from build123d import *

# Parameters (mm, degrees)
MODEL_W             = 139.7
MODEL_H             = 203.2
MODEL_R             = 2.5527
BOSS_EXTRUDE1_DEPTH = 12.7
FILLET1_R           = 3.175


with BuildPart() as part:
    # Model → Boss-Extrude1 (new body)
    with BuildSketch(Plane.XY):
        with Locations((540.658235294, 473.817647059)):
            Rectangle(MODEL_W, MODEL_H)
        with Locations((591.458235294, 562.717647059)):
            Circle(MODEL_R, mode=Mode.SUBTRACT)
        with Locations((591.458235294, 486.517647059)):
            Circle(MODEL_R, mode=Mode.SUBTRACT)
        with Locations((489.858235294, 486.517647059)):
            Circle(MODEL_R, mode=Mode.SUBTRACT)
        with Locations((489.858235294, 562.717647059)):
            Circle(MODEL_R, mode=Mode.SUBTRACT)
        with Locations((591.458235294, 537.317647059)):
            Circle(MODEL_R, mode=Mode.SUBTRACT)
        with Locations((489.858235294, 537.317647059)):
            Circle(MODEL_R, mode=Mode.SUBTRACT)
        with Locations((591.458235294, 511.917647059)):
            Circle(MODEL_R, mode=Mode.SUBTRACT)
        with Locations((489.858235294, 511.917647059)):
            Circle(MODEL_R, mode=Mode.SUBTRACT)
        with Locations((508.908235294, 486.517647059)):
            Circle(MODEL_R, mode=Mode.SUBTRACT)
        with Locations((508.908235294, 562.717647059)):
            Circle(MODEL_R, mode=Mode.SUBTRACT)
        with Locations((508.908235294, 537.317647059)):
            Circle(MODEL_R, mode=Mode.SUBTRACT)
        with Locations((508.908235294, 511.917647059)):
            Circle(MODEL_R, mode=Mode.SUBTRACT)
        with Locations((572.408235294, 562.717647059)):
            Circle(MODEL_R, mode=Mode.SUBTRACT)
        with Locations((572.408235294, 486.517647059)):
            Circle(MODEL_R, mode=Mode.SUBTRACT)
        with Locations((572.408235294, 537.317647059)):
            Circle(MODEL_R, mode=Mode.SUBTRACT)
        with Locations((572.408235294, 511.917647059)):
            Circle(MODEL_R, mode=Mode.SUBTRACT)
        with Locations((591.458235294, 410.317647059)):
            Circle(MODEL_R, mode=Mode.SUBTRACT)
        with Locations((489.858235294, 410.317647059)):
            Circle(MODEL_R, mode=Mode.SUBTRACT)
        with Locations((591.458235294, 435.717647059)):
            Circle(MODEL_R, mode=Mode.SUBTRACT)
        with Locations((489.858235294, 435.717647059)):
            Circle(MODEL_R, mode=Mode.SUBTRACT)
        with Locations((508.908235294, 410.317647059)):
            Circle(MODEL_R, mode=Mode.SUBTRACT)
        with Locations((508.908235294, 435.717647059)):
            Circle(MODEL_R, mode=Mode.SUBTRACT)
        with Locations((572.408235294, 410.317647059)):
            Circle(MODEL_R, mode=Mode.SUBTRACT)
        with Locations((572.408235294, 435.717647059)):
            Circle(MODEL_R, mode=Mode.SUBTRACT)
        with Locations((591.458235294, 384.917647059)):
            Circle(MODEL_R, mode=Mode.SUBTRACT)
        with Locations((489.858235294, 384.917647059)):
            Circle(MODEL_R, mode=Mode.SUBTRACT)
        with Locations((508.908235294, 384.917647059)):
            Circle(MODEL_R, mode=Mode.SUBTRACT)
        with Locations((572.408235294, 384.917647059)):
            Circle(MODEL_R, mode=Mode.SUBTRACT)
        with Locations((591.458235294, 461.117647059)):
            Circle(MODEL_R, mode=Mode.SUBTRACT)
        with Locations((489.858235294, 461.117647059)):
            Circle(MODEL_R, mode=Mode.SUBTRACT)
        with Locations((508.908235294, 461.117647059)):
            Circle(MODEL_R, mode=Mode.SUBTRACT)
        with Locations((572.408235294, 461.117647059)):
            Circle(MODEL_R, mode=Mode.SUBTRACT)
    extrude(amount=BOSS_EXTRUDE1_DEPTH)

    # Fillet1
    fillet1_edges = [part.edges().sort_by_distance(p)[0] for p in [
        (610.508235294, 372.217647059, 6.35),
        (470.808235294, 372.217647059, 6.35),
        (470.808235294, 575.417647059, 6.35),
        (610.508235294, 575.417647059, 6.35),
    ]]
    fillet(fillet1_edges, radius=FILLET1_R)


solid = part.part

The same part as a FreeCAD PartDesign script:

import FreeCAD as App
import Part
import Sketcher
from FreeCAD import Vector
Q = App.Units.Quantity


def edges_at(feature, points):
    """Names of the edges that pass closest to the given points."""
    edges = feature.Shape.Edges
    near = lambda p: min(range(len(edges)), key=lambda i: edges[i].distToShape(Part.Vertex(*p))[0])
    return sorted({f"Edge{near(p) + 1}" for p in points})

doc = App.newDocument("Part")
body = doc.addObject("PartDesign::Body", "Body")

sketch1 = body.newObject("Sketcher::SketchObject", "Sketch")
sketch1.AttachmentSupport = (doc.getObject("XY_Plane"), [""])
sketch1.MapMode = "FlatFace"
sketch1.addGeometry([
    Part.LineSegment(Vector(470.8, 575.4, 0), Vector(470.8, 372.2, 0)),
    Part.LineSegment(Vector(470.8, 372.2, 0), Vector(610.5, 372.2, 0)),
    Part.LineSegment(Vector(610.5, 372.2, 0), Vector(610.5, 575.4, 0)),
    Part.LineSegment(Vector(610.5, 575.4, 0), Vector(470.8, 575.4, 0)),
    Part.Circle(Vector(489.9, 384.9, 0), Vector(0, 0, 1), 2.6),
    Part.Circle(Vector(508.9, 384.9, 0), Vector(0, 0, 1), 2.6),
    Part.Circle(Vector(489.9, 410.3, 0), Vector(0, 0, 1), 2.6),
    Part.Circle(Vector(508.9, 410.3, 0), Vector(0, 0, 1), 2.6),
    Part.Circle(Vector(489.9, 435.7, 0), Vector(0, 0, 1), 2.6),
    Part.Circle(Vector(508.9, 435.7, 0), Vector(0, 0, 1), 2.6),
    Part.Circle(Vector(489.9, 461.1, 0), Vector(0, 0, 1), 2.6),
    Part.Circle(Vector(508.9, 461.1, 0), Vector(0, 0, 1), 2.6),
    Part.Circle(Vector(572.4, 384.9, 0), Vector(0, 0, 1), 2.6),
    Part.Circle(Vector(591.5, 384.9, 0), Vector(0, 0, 1), 2.6),
    Part.Circle(Vector(572.4, 410.3, 0), Vector(0, 0, 1), 2.6),
    Part.Circle(Vector(591.5, 410.3, 0), Vector(0, 0, 1), 2.6),
    Part.Circle(Vector(572.4, 435.7, 0), Vector(0, 0, 1), 2.6),
    Part.Circle(Vector(591.5, 435.7, 0), Vector(0, 0, 1), 2.6),
    Part.Circle(Vector(572.4, 461.1, 0), Vector(0, 0, 1), 2.6),
    Part.Circle(Vector(591.5, 461.1, 0), Vector(0, 0, 1), 2.6),
    Part.Circle(Vector(489.9, 486.5, 0), Vector(0, 0, 1), 2.6),
    Part.Circle(Vector(508.9, 486.5, 0), Vector(0, 0, 1), 2.6),
    Part.Circle(Vector(489.9, 511.9, 0), Vector(0, 0, 1), 2.6),
    Part.Circle(Vector(508.9, 511.9, 0), Vector(0, 0, 1), 2.6),
    Part.Circle(Vector(489.9, 537.3, 0), Vector(0, 0, 1), 2.6),
    Part.Circle(Vector(508.9, 537.3, 0), Vector(0, 0, 1), 2.6),
    Part.Circle(Vector(489.9, 562.7, 0), Vector(0, 0, 1), 2.6),
    Part.Circle(Vector(508.9, 562.7, 0), Vector(0, 0, 1), 2.6),
    Part.Circle(Vector(572.4, 486.5, 0), Vector(0, 0, 1), 2.6),
    Part.Circle(Vector(591.5, 486.5, 0), Vector(0, 0, 1), 2.6),
    Part.Circle(Vector(572.4, 511.9, 0), Vector(0, 0, 1), 2.6),
    Part.Circle(Vector(591.5, 511.9, 0), Vector(0, 0, 1), 2.6),
    Part.Circle(Vector(572.4, 537.3, 0), Vector(0, 0, 1), 2.6),
    Part.Circle(Vector(591.5, 537.3, 0), Vector(0, 0, 1), 2.6),
    Part.Circle(Vector(572.4, 562.7, 0), Vector(0, 0, 1), 2.6),
    Part.Circle(Vector(591.5, 562.7, 0), Vector(0, 0, 1), 2.6),
], False)
sketch1.addConstraint([
    Sketcher.Constraint("Coincident", 0, 2, 1, 1),
    Sketcher.Constraint("Coincident", 1, 2, 2, 1),
    Sketcher.Constraint("Coincident", 2, 2, 3, 1),
    Sketcher.Constraint("Coincident", 3, 2, 0, 1),
    Sketcher.Constraint("Vertical", 0),
    Sketcher.Constraint("Horizontal", 1),
    Sketcher.Constraint("Vertical", 2),
    Sketcher.Constraint("Horizontal", 3),
    Sketcher.Constraint("Equal", 4, 5),
    Sketcher.Constraint("Equal", 5, 6),
    Sketcher.Constraint("Equal", 6, 7),
    Sketcher.Constraint("Equal", 7, 8),
    Sketcher.Constraint("Equal", 8, 9),
    Sketcher.Constraint("Equal", 9, 10),
    Sketcher.Constraint("Equal", 10, 11),
    Sketcher.Constraint("Equal", 11, 12),
    Sketcher.Constraint("Equal", 12, 13),
    Sketcher.Constraint("Equal", 13, 14),
    Sketcher.Constraint("Equal", 14, 15),
    Sketcher.Constraint("Equal", 15, 16),
    Sketcher.Constraint("Equal", 16, 17),
    Sketcher.Constraint("Equal", 17, 18),
    Sketcher.Constraint("Equal", 18, 19),
    Sketcher.Constraint("Equal", 19, 20),
    Sketcher.Constraint("Equal", 20, 21),
    Sketcher.Constraint("Equal", 21, 22),
    Sketcher.Constraint("Equal", 22, 23),
    Sketcher.Constraint("Equal", 23, 24),
    Sketcher.Constraint("Equal", 24, 25),
    Sketcher.Constraint("Equal", 25, 26),
    Sketcher.Constraint("Equal", 26, 27),
    Sketcher.Constraint("Equal", 27, 28),
    Sketcher.Constraint("Equal", 28, 29),
    Sketcher.Constraint("Equal", 29, 30),
    Sketcher.Constraint("Equal", 30, 31),
    Sketcher.Constraint("Equal", 31, 32),
    Sketcher.Constraint("Equal", 32, 33),
    Sketcher.Constraint("Equal", 33, 34),
    Sketcher.Constraint("Equal", 34, 35),
    Sketcher.Constraint("Horizontal", 4, 3, 5, 3),
    Sketcher.Constraint("Horizontal", 6, 3, 7, 3),
    Sketcher.Constraint("Horizontal", 8, 3, 9, 3),
    Sketcher.Constraint("Horizontal", 10, 3, 11, 3),
    Sketcher.Constraint("Horizontal", 5, 3, 12, 3),
    Sketcher.Constraint("Horizontal", 12, 3, 13, 3),
    Sketcher.Constraint("Horizontal", 7, 3, 14, 3),
    Sketcher.Constraint("Horizontal", 14, 3, 15, 3),
    Sketcher.Constraint("Horizontal", 9, 3, 16, 3),
    Sketcher.Constraint("Horizontal", 16, 3, 17, 3),
    Sketcher.Constraint("Horizontal", 11, 3, 18, 3),
    Sketcher.Constraint("Horizontal", 18, 3, 19, 3),
    Sketcher.Constraint("Horizontal", 20, 3, 21, 3),
    Sketcher.Constraint("Horizontal", 22, 3, 23, 3),
    Sketcher.Constraint("Horizontal", 24, 3, 25, 3),
    Sketcher.Constraint("Horizontal", 26, 3, 27, 3),
    Sketcher.Constraint("Horizontal", 21, 3, 28, 3),
    Sketcher.Constraint("Horizontal", 28, 3, 29, 3),
    Sketcher.Constraint("Horizontal", 23, 3, 30, 3),
    Sketcher.Constraint("Horizontal", 30, 3, 31, 3),
    Sketcher.Constraint("Horizontal", 25, 3, 32, 3),
    Sketcher.Constraint("Horizontal", 32, 3, 33, 3),
    Sketcher.Constraint("Horizontal", 27, 3, 34, 3),
    Sketcher.Constraint("Horizontal", 34, 3, 35, 3),
    Sketcher.Constraint("Vertical", 4, 3, 6, 3),
    Sketcher.Constraint("Vertical", 5, 3, 7, 3),
    Sketcher.Constraint("Vertical", 6, 3, 8, 3),
    Sketcher.Constraint("Vertical", 7, 3, 9, 3),
    Sketcher.Constraint("Vertical", 8, 3, 10, 3),
    Sketcher.Constraint("Vertical", 9, 3, 11, 3),
    Sketcher.Constraint("Vertical", 12, 3, 14, 3),
    Sketcher.Constraint("Vertical", 13, 3, 15, 3),
    Sketcher.Constraint("Vertical", 14, 3, 16, 3),
    Sketcher.Constraint("Vertical", 15, 3, 17, 3),
    Sketcher.Constraint("Vertical", 16, 3, 18, 3),
    Sketcher.Constraint("Vertical", 17, 3, 19, 3),
    Sketcher.Constraint("Vertical", 10, 3, 20, 3),
    Sketcher.Constraint("Vertical", 11, 3, 21, 3),
    Sketcher.Constraint("Vertical", 20, 3, 22, 3),
    Sketcher.Constraint("Vertical", 21, 3, 23, 3),
    Sketcher.Constraint("Vertical", 22, 3, 24, 3),
    Sketcher.Constraint("Vertical", 23, 3, 25, 3),
    Sketcher.Constraint("Vertical", 24, 3, 26, 3),
    Sketcher.Constraint("Vertical", 25, 3, 27, 3),
    Sketcher.Constraint("Vertical", 18, 3, 28, 3),
    Sketcher.Constraint("Vertical", 19, 3, 29, 3),
    Sketcher.Constraint("Vertical", 28, 3, 30, 3),
    Sketcher.Constraint("Vertical", 29, 3, 31, 3),
    Sketcher.Constraint("Vertical", 30, 3, 32, 3),
    Sketcher.Constraint("Vertical", 31, 3, 33, 3),
    Sketcher.Constraint("Vertical", 32, 3, 34, 3),
    Sketcher.Constraint("Vertical", 33, 3, 35, 3),
    Sketcher.Constraint("DistanceY", 0, 2, 0, 1, Q("8 in")),
    Sketcher.Constraint("Diameter", 4, Q("0.201 in")),
    Sketcher.Constraint("DistanceX", 1, 1, 1, 2, Q("5.5 in")),
    Sketcher.Constraint("DistanceY", 4, 3, 6, 3, Q("1 in")),
    Sketcher.Constraint("DistanceY", 6, 3, 8, 3, Q("1 in")),
    Sketcher.Constraint("DistanceY", 8, 3, 10, 3, Q("1 in")),
    Sketcher.Constraint("DistanceX", 4, 3, 13, 3, Q("4 in")),
    Sketcher.Constraint("DistanceY", 10, 3, 20, 3, Q("1 in")),
    Sketcher.Constraint("DistanceY", 20, 3, 22, 3, Q("1 in")),
    Sketcher.Constraint("DistanceY", 22, 3, 24, 3, Q("1 in")),
    Sketcher.Constraint("DistanceY", 24, 3, 26, 3, Q("1 in")),
    Sketcher.Constraint("DistanceX", 5, 3, 12, 3, Q("2.5 in")),
    Sketcher.Constraint("DistanceY", 0, 2, 4, 3, Q("0.5 in")),
    Sketcher.Constraint("DistanceX", 0, 2, 5, 3, Q("1.5 in")),
    Sketcher.Constraint("DistanceX", 4, 3, 5, 3, Q("0.75 in")),
    Sketcher.Constraint("DistanceX", -1, 1, 4, 3, Q("489.858235 mm")),
    Sketcher.Constraint("DistanceY", -1, 1, 4, 3, Q("384.917647 mm")),
])
pad1 = body.newObject("PartDesign::Pad", "Pad")
pad1.Profile = sketch1
pad1.Length = Q("0.5 in")
doc.recompute()

fillet = body.newObject("PartDesign::Fillet", "Fillet")
fillet.Base = (pad1, edges_at(pad1, [
    (610.508, 372.218, 6.35),
    (470.808, 372.218, 6.35),
    (470.808, 575.418, 6.35),
    (610.508, 575.418, 6.35),
]))
fillet.Radius = Q("0.125 in")

doc.recompute()
